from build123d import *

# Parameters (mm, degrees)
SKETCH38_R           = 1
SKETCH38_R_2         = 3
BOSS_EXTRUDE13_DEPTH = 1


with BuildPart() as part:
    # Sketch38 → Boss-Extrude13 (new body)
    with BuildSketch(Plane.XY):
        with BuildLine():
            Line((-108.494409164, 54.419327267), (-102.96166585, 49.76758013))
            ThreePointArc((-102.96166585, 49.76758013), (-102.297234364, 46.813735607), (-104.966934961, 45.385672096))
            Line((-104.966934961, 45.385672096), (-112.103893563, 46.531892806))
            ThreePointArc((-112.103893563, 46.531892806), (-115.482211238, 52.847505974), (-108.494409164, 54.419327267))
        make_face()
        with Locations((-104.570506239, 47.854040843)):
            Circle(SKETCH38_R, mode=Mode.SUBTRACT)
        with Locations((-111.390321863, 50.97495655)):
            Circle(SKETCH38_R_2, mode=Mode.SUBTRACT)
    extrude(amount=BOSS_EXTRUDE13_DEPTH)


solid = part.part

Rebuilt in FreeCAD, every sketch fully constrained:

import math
import FreeCAD as App
import Part
import Sketcher

V = App.Vector

doc = App.newDocument("Part")
params = doc.addObject("Spreadsheet::Sheet", "Params")
for row, (alias, value) in enumerate([
    ("sketch1_diameter", "2 mm"),
    ("sketch1_diameter2", "6 mm"),
    ("sketch1_radius", "4.5 mm"),
    ("sketch1_radius2", "2.5 mm"),
    ("pad1_length", "1 mm"),
], start=1):
    params.set(f"A{row}", alias)
    params.set(f"B{row}", "=" + value)
    params.setAlias(f"B{row}", alias)

body = doc.addObject("PartDesign::Body", "Body")

# Sketch on XY plane
sketch1 = body.newObject("Sketcher::SketchObject", "Sketch")
sketch1.AttachmentSupport = (doc.getObject("XY_Plane"), [""])
sketch1.MapMode = "FlatFace"
sketch1.addGeometry(Part.LineSegment(V(-103, 49.8, 0), V(-108.5, 54.4, 0)), False)
sketch1.addGeometry(Part.ArcOfCircle(Part.Circle(V(-111.4, 51, 0), V(0, 0, 1), 4.5), math.radians(50), math.radians(261)), False)
sketch1.addGeometry(Part.LineSegment(V(-112.1, 46.5, 0), V(-105, 45.4, 0)), False)
sketch1.addGeometry(Part.ArcOfCircle(Part.Circle(V(-104.6, 47.9, 0), V(0, 0, 1), 2.5), math.radians(-99), math.radians(50)), False)
sketch1.addGeometry(Part.Circle(V(-104.6, 47.9, 0), V(0, 0, 1), 1), False)
sketch1.addGeometry(Part.Circle(V(-111.4, 51, 0), V(0, 0, 1), 3), False)
sketch1.addConstraint(Sketcher.Constraint("Tangent", 0, 2, 1, 1))
sketch1.addConstraint(Sketcher.Constraint("Tangent", 1, 2, 2, 1))
sketch1.addConstraint(Sketcher.Constraint("Tangent", 2, 2, 3, 1))
sketch1.addConstraint(Sketcher.Constraint("Tangent", 3, 2, 0, 1))
sketch1.addConstraint(Sketcher.Constraint("Coincident", 4, 3, 3, 3))
sketch1.addConstraint(Sketcher.Constraint("Coincident", 5, 3, 1, 3))
sketch1.addConstraint(Sketcher.Constraint("Diameter", 4, 2.0))
sketch1.addConstraint(Sketcher.Constraint("Diameter", 5, 6.0))
sketch1.addConstraint(Sketcher.Constraint("Radius", 1, 4.5))
sketch1.addConstraint(Sketcher.Constraint("Radius", 3, 2.5))
sketch1.addConstraint(Sketcher.Constraint("DistanceX", 1, 3, -1, 1, 111.390322))
sketch1.addConstraint(Sketcher.Constraint("DistanceY", -1, 1, 3, 3, 47.854041))
sketch1.addConstraint(Sketcher.Constraint("DistanceX", 0, 2, -1, 1, 108.494409))
sketch1.addConstraint(Sketcher.Constraint("DistanceX", 1, 2, 1, 3, 0.713572))
sketch1.setExpression("Constraints[6]", "Params.sketch1_diameter")
sketch1.setExpression("Constraints[7]", "Params.sketch1_diameter2")
sketch1.setExpression("Constraints[8]", "Params.sketch1_radius")
sketch1.setExpression("Constraints[9]", "Params.sketch1_radius2")
pad1 = body.newObject("PartDesign::Pad", "Pad")
pad1.Profile = sketch1
pad1.setExpression("Length", "Params.pad1_length")

doc.recompute()
